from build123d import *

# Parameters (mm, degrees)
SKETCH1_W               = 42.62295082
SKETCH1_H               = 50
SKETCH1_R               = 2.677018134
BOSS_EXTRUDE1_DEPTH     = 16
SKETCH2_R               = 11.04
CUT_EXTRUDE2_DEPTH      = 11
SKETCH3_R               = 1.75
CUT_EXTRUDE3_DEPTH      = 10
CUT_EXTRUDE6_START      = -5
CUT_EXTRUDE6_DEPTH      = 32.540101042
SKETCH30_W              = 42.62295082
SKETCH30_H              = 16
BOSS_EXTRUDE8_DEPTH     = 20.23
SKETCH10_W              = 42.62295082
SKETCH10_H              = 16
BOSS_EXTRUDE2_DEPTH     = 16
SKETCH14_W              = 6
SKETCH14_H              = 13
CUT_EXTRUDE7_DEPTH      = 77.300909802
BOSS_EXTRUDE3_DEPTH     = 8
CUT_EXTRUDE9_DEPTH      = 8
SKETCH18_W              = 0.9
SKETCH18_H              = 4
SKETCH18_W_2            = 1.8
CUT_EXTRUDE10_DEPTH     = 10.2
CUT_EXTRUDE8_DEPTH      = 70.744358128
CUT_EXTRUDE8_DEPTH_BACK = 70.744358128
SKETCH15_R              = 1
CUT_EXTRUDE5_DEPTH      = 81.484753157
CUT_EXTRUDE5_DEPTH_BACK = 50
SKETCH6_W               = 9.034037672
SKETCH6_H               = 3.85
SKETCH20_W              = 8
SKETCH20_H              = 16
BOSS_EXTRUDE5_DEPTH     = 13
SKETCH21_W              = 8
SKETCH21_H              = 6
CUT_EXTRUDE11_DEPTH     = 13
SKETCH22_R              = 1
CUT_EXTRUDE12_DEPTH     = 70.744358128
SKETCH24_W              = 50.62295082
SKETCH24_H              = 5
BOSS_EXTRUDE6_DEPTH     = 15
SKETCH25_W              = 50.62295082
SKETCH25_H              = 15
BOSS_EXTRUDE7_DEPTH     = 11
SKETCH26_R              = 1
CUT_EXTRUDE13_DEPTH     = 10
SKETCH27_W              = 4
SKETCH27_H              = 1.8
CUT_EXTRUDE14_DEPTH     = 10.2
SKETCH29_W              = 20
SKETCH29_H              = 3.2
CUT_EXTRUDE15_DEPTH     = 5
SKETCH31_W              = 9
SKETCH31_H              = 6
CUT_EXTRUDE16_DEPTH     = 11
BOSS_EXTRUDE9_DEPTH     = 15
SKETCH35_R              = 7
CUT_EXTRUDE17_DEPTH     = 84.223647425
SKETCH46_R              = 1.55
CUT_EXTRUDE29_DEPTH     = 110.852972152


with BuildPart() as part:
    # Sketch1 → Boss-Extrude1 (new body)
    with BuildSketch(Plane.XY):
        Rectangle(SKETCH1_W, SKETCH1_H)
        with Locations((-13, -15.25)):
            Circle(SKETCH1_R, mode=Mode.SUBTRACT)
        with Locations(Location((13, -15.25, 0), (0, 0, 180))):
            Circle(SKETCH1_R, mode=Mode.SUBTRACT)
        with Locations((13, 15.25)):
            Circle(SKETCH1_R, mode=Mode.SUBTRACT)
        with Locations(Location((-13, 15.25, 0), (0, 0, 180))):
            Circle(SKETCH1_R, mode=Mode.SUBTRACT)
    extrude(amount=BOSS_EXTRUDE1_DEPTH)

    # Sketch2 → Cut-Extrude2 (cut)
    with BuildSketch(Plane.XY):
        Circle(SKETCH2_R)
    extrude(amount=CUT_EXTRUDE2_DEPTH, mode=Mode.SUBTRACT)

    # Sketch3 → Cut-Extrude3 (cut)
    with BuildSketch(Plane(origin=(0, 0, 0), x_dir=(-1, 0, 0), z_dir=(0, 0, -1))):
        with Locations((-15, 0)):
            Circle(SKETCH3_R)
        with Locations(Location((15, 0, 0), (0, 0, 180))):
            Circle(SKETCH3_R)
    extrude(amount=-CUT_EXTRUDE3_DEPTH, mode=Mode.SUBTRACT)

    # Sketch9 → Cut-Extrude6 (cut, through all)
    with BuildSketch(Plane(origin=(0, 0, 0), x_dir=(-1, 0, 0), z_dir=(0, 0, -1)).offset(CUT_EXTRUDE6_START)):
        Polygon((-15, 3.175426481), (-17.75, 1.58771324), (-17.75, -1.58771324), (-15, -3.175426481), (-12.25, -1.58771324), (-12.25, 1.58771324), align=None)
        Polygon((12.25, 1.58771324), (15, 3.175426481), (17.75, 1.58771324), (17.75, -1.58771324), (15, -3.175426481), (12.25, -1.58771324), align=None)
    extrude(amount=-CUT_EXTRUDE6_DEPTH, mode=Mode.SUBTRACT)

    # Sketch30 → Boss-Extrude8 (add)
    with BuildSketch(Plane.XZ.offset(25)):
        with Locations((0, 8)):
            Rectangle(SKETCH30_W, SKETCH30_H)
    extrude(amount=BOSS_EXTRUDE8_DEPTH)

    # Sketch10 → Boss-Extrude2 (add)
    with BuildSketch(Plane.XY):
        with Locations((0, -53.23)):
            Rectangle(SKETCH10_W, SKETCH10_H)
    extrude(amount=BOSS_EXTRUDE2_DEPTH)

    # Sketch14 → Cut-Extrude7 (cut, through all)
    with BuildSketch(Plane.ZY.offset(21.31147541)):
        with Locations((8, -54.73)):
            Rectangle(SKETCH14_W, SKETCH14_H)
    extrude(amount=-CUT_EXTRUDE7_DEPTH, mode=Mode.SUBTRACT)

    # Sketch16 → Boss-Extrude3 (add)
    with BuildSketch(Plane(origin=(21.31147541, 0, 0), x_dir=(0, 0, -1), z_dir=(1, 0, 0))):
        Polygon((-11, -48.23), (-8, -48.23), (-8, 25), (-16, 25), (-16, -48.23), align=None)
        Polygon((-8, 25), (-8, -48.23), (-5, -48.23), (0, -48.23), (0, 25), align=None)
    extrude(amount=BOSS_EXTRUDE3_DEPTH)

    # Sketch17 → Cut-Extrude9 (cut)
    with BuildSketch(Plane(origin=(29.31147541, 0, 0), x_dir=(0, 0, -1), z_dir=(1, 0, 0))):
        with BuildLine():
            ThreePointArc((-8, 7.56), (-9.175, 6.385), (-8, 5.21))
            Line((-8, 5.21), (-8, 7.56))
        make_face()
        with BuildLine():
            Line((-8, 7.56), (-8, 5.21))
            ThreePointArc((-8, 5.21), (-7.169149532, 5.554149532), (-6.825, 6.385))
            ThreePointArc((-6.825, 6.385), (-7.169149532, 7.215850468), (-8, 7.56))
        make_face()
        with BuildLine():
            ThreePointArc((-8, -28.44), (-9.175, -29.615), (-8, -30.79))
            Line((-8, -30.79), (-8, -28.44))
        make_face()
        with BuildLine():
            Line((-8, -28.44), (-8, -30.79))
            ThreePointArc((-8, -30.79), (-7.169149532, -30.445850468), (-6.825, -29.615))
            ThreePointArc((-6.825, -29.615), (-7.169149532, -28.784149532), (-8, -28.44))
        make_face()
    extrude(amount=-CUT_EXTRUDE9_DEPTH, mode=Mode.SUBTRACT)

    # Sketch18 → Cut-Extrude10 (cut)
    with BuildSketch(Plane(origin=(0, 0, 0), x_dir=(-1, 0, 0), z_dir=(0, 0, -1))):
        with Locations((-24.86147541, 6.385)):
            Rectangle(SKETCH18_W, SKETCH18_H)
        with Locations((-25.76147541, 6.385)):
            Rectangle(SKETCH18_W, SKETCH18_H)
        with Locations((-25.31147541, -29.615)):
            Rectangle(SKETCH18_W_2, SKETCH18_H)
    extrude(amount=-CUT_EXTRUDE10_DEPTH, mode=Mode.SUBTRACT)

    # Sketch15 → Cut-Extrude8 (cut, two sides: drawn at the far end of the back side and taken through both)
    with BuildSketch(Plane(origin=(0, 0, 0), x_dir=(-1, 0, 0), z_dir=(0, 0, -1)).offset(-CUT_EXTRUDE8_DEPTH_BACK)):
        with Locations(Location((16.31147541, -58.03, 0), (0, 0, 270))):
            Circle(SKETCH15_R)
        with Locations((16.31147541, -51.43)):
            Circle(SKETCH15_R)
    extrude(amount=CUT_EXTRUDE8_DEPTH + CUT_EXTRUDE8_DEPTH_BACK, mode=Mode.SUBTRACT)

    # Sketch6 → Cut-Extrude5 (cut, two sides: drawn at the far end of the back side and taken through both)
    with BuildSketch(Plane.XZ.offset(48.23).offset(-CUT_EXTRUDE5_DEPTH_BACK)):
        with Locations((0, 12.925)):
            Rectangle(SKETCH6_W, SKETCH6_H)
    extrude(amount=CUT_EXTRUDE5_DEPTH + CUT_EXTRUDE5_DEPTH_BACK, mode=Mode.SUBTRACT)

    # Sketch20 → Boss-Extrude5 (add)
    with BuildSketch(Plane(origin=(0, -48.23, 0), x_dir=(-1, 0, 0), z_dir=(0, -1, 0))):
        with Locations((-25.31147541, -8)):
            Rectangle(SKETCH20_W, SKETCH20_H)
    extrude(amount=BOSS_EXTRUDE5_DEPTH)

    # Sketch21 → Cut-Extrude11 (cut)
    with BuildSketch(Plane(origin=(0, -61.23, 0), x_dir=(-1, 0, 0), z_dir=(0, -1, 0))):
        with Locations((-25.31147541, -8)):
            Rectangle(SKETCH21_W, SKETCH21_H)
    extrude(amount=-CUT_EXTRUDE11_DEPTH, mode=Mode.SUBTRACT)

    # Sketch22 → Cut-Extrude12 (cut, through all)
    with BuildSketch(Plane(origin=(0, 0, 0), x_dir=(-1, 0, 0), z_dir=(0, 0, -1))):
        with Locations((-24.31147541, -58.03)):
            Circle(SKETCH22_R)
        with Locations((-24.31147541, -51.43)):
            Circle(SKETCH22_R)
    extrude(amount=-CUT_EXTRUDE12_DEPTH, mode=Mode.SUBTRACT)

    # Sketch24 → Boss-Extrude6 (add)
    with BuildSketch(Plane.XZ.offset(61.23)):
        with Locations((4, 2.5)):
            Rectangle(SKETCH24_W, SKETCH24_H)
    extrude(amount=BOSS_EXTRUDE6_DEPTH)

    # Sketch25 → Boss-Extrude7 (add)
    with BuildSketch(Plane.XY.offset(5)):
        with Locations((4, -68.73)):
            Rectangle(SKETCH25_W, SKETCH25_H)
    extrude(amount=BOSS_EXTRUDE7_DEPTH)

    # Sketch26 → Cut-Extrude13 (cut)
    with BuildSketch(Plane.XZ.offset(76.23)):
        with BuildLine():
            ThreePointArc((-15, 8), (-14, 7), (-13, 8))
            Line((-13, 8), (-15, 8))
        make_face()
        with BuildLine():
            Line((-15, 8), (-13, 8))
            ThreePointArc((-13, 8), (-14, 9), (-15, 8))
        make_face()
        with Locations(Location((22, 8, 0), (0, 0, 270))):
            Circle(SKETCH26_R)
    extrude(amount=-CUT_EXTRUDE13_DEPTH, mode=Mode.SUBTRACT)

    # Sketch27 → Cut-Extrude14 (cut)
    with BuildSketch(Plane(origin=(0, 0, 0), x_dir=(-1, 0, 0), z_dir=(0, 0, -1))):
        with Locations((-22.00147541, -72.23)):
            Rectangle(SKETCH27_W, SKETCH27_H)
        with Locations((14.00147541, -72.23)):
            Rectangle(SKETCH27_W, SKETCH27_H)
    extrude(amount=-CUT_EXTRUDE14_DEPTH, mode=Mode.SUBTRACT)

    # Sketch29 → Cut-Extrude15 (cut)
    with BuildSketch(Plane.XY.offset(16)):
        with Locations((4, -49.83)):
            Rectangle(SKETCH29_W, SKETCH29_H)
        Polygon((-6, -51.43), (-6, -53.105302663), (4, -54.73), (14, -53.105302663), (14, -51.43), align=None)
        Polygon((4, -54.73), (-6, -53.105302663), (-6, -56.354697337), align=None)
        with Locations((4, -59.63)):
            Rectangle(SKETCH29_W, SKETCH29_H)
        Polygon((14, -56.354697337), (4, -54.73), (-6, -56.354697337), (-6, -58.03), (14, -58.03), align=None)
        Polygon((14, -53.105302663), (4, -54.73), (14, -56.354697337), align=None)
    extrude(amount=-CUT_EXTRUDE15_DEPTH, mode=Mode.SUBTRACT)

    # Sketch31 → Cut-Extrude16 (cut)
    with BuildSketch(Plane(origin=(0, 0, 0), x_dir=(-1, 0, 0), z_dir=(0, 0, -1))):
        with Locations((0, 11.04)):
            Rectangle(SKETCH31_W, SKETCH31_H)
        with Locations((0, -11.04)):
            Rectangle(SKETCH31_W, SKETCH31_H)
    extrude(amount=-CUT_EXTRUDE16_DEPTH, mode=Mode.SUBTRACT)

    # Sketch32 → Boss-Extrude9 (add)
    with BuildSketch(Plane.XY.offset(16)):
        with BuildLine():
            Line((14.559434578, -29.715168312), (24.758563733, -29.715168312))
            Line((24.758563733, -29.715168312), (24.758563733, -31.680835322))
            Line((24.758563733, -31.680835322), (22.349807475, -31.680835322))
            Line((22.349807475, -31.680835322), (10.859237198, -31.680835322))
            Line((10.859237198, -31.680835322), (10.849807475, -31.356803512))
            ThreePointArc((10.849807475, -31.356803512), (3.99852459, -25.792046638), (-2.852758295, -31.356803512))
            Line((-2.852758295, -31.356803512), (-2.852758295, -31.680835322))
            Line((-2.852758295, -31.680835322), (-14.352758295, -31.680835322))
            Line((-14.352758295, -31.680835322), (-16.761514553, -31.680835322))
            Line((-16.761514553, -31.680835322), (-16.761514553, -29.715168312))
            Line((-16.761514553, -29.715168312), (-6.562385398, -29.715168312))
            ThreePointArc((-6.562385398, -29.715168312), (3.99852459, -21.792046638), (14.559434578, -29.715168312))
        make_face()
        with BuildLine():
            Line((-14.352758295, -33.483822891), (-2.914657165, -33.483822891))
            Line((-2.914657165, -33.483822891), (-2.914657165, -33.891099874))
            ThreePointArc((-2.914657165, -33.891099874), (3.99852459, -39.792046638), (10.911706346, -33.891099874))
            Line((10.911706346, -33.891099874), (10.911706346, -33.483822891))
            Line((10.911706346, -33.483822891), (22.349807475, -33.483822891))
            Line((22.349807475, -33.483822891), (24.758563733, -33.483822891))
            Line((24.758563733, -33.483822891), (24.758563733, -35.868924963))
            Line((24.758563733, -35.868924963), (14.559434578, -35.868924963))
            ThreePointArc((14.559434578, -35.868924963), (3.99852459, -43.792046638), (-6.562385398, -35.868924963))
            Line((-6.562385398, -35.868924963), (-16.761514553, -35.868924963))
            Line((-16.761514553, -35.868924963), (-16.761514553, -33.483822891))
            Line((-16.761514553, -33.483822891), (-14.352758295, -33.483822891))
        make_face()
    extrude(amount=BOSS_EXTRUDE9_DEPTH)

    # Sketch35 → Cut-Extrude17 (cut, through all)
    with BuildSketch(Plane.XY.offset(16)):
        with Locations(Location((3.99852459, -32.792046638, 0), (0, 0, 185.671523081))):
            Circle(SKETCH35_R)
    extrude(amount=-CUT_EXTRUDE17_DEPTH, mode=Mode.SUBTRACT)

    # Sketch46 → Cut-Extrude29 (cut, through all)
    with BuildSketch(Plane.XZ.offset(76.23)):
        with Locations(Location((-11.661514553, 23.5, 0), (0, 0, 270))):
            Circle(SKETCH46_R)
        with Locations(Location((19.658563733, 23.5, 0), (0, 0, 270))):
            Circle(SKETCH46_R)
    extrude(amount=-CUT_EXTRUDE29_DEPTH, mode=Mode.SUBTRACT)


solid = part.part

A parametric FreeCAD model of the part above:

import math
import FreeCAD as App
import Part
import Sketcher

V = App.Vector
Q = App.Units.Quantity


def add_polygon(sketch, points):
    """Adds a closed chain of lines whose ends are joined by coincident constraints."""
    first, n = sketch.GeometryCount, len(points)
    for a, b in zip(points, points[1:] + points[:1]):
        sketch.addGeometry(Part.LineSegment(App.Vector(*a, 0), App.Vector(*b, 0)), False)
    for i in range(n):
        sketch.addConstraint(Sketcher.Constraint("Coincident", first + i, 2, first + (i + 1) % n, 1))

doc = App.newDocument("Part")
body = doc.addObject("PartDesign::Body", "Body")

# Sketch on XY plane
sketch1 = body.newObject("Sketcher::SketchObject", "Sketch")
sketch1.AttachmentSupport = (doc.getObject("XY_Plane"), [""])
sketch1.MapMode = "FlatFace"
add_polygon(sketch1, [(-21.311475, 25), (-21.311475, -25), (21.311475, -25), (21.311475, 25)])  # lines 0-3
sketch1.addGeometry(Part.Circle(V(-13, -15.25, 0), V(0, 0, 1), 2.677018), False)  # 4
sketch1.addGeometry(Part.Circle(V(13, -15.25, 0), V(0, 0, 1), 2.677018), False)  # 5
sketch1.addGeometry(Part.Circle(V(-13, 15.25, 0), V(0, 0, 1), 2.677018), False)  # 6
sketch1.addGeometry(Part.Circle(V(13, 15.25, 0), V(0, 0, 1), 2.677018), False)  # 7
sketch1.addConstraint(Sketcher.Constraint("Vertical", 0))
sketch1.addConstraint(Sketcher.Constraint("Horizontal", 1))
sketch1.addConstraint(Sketcher.Constraint("Vertical", 2))
sketch1.addConstraint(Sketcher.Constraint("Horizontal", 3))
sketch1.addConstraint(Sketcher.Constraint("Equal", 4, 5))
sketch1.addConstraint(Sketcher.Constraint("Equal", 5, 6))
sketch1.addConstraint(Sketcher.Constraint("Equal", 6, 7))
sketch1.addConstraint(Sketcher.Constraint("Symmetric", 5, 3, 6, 3, -1, 1))
sketch1.addConstraint(Sketcher.Constraint("Symmetric", 4, 3, 7, 3, -1, 1))
sketch1.addConstraint(Sketcher.Constraint("Symmetric", 0, 2, 2, 2, -1, 1))
sketch1.addConstraint(Sketcher.Constraint("Symmetric", 4, 3, 5, 3, -2))
sketch1.addConstraint(Sketcher.Constraint("DistanceY", 0, 2, 0, 1, 50.0))
sketch1.addConstraint(Sketcher.Constraint("DistanceX", 4, 3, -1, 1, 13.0))
sketch1.addConstraint(Sketcher.Constraint("DistanceY", 4, 3, 6, 3, 30.5))
sketch1.addConstraint(Sketcher.Constraint("Diameter", 4, 5.354036))
sketch1.addConstraint(Sketcher.Constraint("DistanceX", 1, 1, 1, 2, 42.622951))
pad1 = body.newObject("PartDesign::Pad", "Pad")
pad1.Profile = sketch1
pad1.Length = 16

# Sketch on XY plane
sketch2 = body.newObject("Sketcher::SketchObject", "Sketch001")
sketch2.AttachmentSupport = (doc.getObject("XY_Plane"), [""])
sketch2.MapMode = "FlatFace"
sketch2.addGeometry(Part.Circle(V(0, 0, 0), V(0, 0, 1), 11.04), False)
sketch2.addConstraint(Sketcher.Constraint("Coincident", 0, 3, -1, 1))
sketch2.addConstraint(Sketcher.Constraint("Diameter", 0, 22.08))
pocket1 = body.newObject("PartDesign::Pocket", "Pocket")
pocket1.Profile = sketch2
pocket1.Length = 11
pocket1.Reversed = True

# Sketch on XY plane
sketch3 = body.newObject("Sketcher::SketchObject", "Sketch002")
sketch3.AttachmentSupport = (doc.getObject("XY_Plane"), [""])
sketch3.MapMode = "FlatFace"
sketch3.addGeometry(Part.Circle(V(15, 0, 0), V(0, 0, 1), 1.75), False)
sketch3.addGeometry(Part.Circle(V(-15, 0, 0), V(0, 0, 1), 1.75), False)
sketch3.addConstraint(Sketcher.Constraint("Equal", 0, 1))
sketch3.addConstraint(Sketcher.Constraint("Symmetric", 0, 3, 1, 3, -1, 1))
sketch3.addConstraint(Sketcher.Constraint("PointOnObject", 0, 3, -1))
sketch3.addConstraint(Sketcher.Constraint("Diameter", 0, 3.5))
sketch3.addConstraint(Sketcher.Constraint("DistanceX", -1, 1, 0, 3, 15.0))
pocket2 = body.newObject("PartDesign::Pocket", "Pocket001")
pocket2.Profile = sketch3
pocket2.Length = 10
pocket2.Reversed = True

# Sketch on XY plane
sketch4 = body.newObject("Sketcher::SketchObject", "Sketch003")
sketch4.AttachmentSupport = (doc.getObject("XY_Plane"), [""])
sketch4.MapMode = "FlatFace"
sketch4.AttachmentOffset = App.Placement(V(0, 0, 5), App.Rotation())
add_polygon(sketch4, [(15, 3.175426), (17.75, 1.587713), (17.75, -1.587713), (15, -3.175426), (12.25, -1.587713), (12.25, 1.587713)])  # lines 0-5
add_polygon(sketch4, [(-15, 3.175426), (-12.25, 1.587713), (-12.25, -1.587713), (-15, -3.175426), (-17.75, -1.587713), (-17.75, 1.587713)])  # lines 6-11
sketch4.addConstraint(Sketcher.Constraint("Vertical", 1))
sketch4.addConstraint(Sketcher.Constraint("Vertical", 4))
sketch4.addConstraint(Sketcher.Constraint("Vertical", 7))
sketch4.addConstraint(Sketcher.Constraint("Vertical", 10))
sketch4.addConstraint(Sketcher.Constraint("Symmetric", 3, 2, 6, 2, -1, 1))
sketch4.addConstraint(Sketcher.Constraint("Symmetric", 5, 2, 8, 2, -1, 1))
sketch4.addConstraint(Sketcher.Constraint("Symmetric", 0, 2, 9, 2, -1, 1))
sketch4.addConstraint(Sketcher.Constraint("Symmetric", 2, 2, 11, 2, -1, 1))
sketch4.addConstraint(Sketcher.Constraint("Symmetric", 2, 2, 8, 2, -2))
sketch4.addConstraint(Sketcher.Constraint("Parallel", 0, 3))
sketch4.addConstraint(Sketcher.Constraint("Parallel", 2, 5))
sketch4.addConstraint(Sketcher.Constraint("Parallel", 5, 8))
sketch4.addConstraint(Sketcher.Constraint("Parallel", 8, 11))
sketch4.addConstraint(Sketcher.Constraint("Horizontal", 1, 2, 3, 2))
sketch4.addConstraint(Sketcher.Constraint("Horizontal", 0, 2, 4, 2))
sketch4.addConstraint(Sketcher.Constraint("Angle", 0, Q("-30 deg")))
sketch4.addConstraint(Sketcher.Constraint("DistanceX", -1, 1, 2, 2, 15.0))
sketch4.addConstraint(Sketcher.Constraint("DistanceX", 3, 2, 1, 2, 5.5))
sketch4.addConstraint(Sketcher.Constraint("DistanceY", 1, 2, 1, 1, 3.175426))
pocket3 = body.newObject("PartDesign::Pocket", "Pocket002")
pocket3.Profile = sketch4
pocket3.Type = "ThroughAll"
pocket3.Reversed = True

# Sketch on XZ plane
sketch5 = body.newObject("Sketcher::SketchObject", "Sketch004")
sketch5.AttachmentSupport = (doc.getObject("XZ_Plane"), [""])
sketch5.MapMode = "FlatFace"
sketch5.AttachmentOffset = App.Placement(V(0, 0, 25), App.Rotation())
add_polygon(sketch5, [(-21.311475, 16), (-21.311475, 0), (21.311475, 0), (21.311475, 16)])  # lines 0-3
sketch5.addConstraint(Sketcher.Constraint("Vertical", 0))
sketch5.addConstraint(Sketcher.Constraint("Horizontal", 1))
sketch5.addConstraint(Sketcher.Constraint("Vertical", 2))
sketch5.addConstraint(Sketcher.Constraint("Horizontal", 3))
sketch5.addConstraint(Sketcher.Constraint("Symmetric", 0, 2, 1, 2, -1, 1))
sketch5.addConstraint(Sketcher.Constraint("DistanceY", 0, 2, 0, 1, 16.0))
sketch5.addConstraint(Sketcher.Constraint("DistanceX", 1, 1, 1, 2, 42.622951))
pad2 = body.newObject("PartDesign::Pad", "Pad001")
pad2.Profile = sketch5
pad2.Length = 20.23

# Sketch on XY plane
sketch6 = body.newObject("Sketcher::SketchObject", "Sketch005")
sketch6.AttachmentSupport = (doc.getObject("XY_Plane"), [""])
sketch6.MapMode = "FlatFace"
add_polygon(sketch6, [(-21.311475, -45.23), (-21.311475, -61.23), (21.311475, -61.23), (21.311475, -45.23)])  # lines 0-3
sketch6.addConstraint(Sketcher.Constraint("Vertical", 0))
sketch6.addConstraint(Sketcher.Constraint("Horizontal", 1))
sketch6.addConstraint(Sketcher.Constraint("Vertical", 2))
sketch6.addConstraint(Sketcher.Constraint("Horizontal", 3))
sketch6.addConstraint(Sketcher.Constraint("DistanceY", 0, 2, 0, 1, 16.0))
sketch6.addConstraint(Sketcher.Constraint("DistanceY", 0, 2, -1, 1, 61.23))
sketch6.addConstraint(Sketcher.Constraint("DistanceX", 1, 1, 1, 2, 42.622951))
sketch6.addConstraint(Sketcher.Constraint("DistanceX", 0, 2, -1, 1, 21.311475))
pad3 = body.newObject("PartDesign::Pad", "Pad002")
pad3.Profile = sketch6
pad3.Length = 16

# Sketch on YZ plane
sketch7 = body.newObject("Sketcher::SketchObject", "Sketch006")
sketch7.AttachmentSupport = (doc.getObject("YZ_Plane"), [""])
sketch7.MapMode = "FlatFace"
sketch7.AttachmentOffset = App.Placement(V(0, 0, -21.311475), App.Rotation())
add_polygon(sketch7, [(-48.23, 5), (-61.23, 5), (-61.23, 11), (-48.23, 11)])  # lines 0-3
sketch7.addConstraint(Sketcher.Constraint("Horizontal", 0))
sketch7.addConstraint(Sketcher.Constraint("Vertical", 1))
sketch7.addConstraint(Sketcher.Constraint("Horizontal", 2))
sketch7.addConstraint(Sketcher.Constraint("Vertical", 3))
sketch7.addConstraint(Sketcher.Constraint("DistanceX", 0, 2, 0, 1, 13.0))
sketch7.addConstraint(Sketcher.Constraint("DistanceY", 1, 1, 1, 2, 6.0))
sketch7.addConstraint(Sketcher.Constraint("DistanceY", -1, 1, 0, 2, 5.0))
sketch7.addConstraint(Sketcher.Constraint("DistanceX", 0, 2, -1, 1, 61.23))
pocket4 = body.newObject("PartDesign::Pocket", "Pocket003")
pocket4.Profile = sketch7
pocket4.Type = "ThroughAll"
pocket4.Reversed = True

# Sketch on YZ plane
sketch8 = body.newObject("Sketcher::SketchObject", "Sketch007")
sketch8.AttachmentSupport = (doc.getObject("YZ_Plane"), [""])
sketch8.MapMode = "FlatFace"
sketch8.AttachmentOffset = App.Placement(V(0, 0, 21.311475), App.Rotation())
add_polygon(sketch8, [(25, 16), (-48.23, 16), (-48.23, 0), (25, 0)])  # lines 0-3
sketch8.addConstraint(Sketcher.Constraint("Horizontal", 0))
sketch8.addConstraint(Sketcher.Constraint("Vertical", 1))
sketch8.addConstraint(Sketcher.Constraint("Horizontal", 2))
sketch8.addConstraint(Sketcher.Constraint("Vertical", 3))
sketch8.addConstraint(Sketcher.Constraint("PointOnObject", 1, 2, -1))
sketch8.addConstraint(Sketcher.Constraint("DistanceY", 1, 2, 1, 1, 16.0))
sketch8.addConstraint(Sketcher.Constraint("DistanceX", -1, 1, 2, 2, 25.0))
sketch8.addConstraint(Sketcher.Constraint("DistanceX", 0, 2, 0, 1, 73.23))
pad4 = body.newObject("PartDesign::Pad", "Pad003")
pad4.Profile = sketch8
pad4.Length = 8

# Sketch on YZ plane
sketch9 = body.newObject("Sketcher::SketchObject", "Sketch008")
sketch9.AttachmentSupport = (doc.getObject("YZ_Plane"), [""])
sketch9.MapMode = "FlatFace"
sketch9.AttachmentOffset = App.Placement(V(0, 0, 29.311475), App.Rotation())
sketch9.addGeometry(Part.ArcOfCircle(Part.Circle(V(6.385, 8, 0), V(0, 0, 1), 1.175), math.radians(0), math.radians(180)), False)
sketch9.addGeometry(Part.ArcOfCircle(Part.Circle(V(6.385, 8, 0), V(0, 0, 1), 1.175), math.radians(180), math.radians(270)), False)
sketch9.addGeometry(Part.ArcOfCircle(Part.Circle(V(6.385, 8, 0), V(0, 0, 1), 1.175), math.radians(-90), math.radians(0)), False)
sketch9.addGeometry(Part.ArcOfCircle(Part.Circle(V(-29.615, 8, 0), V(0, 0, 1), 1.175), math.radians(0), math.radians(180)), False)
sketch9.addGeometry(Part.ArcOfCircle(Part.Circle(V(-29.615, 8, 0), V(0, 0, 1), 1.175), math.radians(180), math.radians(270)), False)
sketch9.addGeometry(Part.ArcOfCircle(Part.Circle(V(-29.615, 8, 0), V(0, 0, 1), 1.175), math.radians(-90), math.radians(0)), False)
sketch9.addConstraint(Sketcher.Constraint("Tangent", 0, 2, 1, 1))
sketch9.addConstraint(Sketcher.Constraint("Tangent", 1, 2, 2, 1))
sketch9.addConstraint(Sketcher.Constraint("Tangent", 2, 2, 0, 1))
sketch9.addConstraint(Sketcher.Constraint("Tangent", 3, 2, 4, 1))
sketch9.addConstraint(Sketcher.Constraint("Tangent", 4, 2, 5, 1))
sketch9.addConstraint(Sketcher.Constraint("Tangent", 5, 2, 3, 1))
sketch9.addConstraint(Sketcher.Constraint("Equal", 2, 3))
sketch9.addConstraint(Sketcher.Constraint("Horizontal", 2, 3, 3, 3))
sketch9.addConstraint(Sketcher.Constraint("Horizontal", 5, 3, 0, 2))
sketch9.addConstraint(Sketcher.Constraint("Horizontal", 0, 2, 2, 2))
sketch9.addConstraint(Sketcher.Constraint("Horizontal", 2, 2, 3, 2))
sketch9.addConstraint(Sketcher.Constraint("Horizontal", 3, 2, 5, 2))
sketch9.addConstraint(Sketcher.Constraint("Vertical", 2, 3, 1, 2))
sketch9.addConstraint(Sketcher.Constraint("Vertical", 5, 3, 4, 2))
sketch9.addConstraint(Sketcher.Constraint("DistanceY", -1, 1, 0, 3, 8.0))
sketch9.addConstraint(Sketcher.Constraint("Radius", 0, 1.175))
sketch9.addConstraint(Sketcher.Constraint("DistanceX", 3, 3, 0, 3, 36.0))
sketch9.addConstraint(Sketcher.Constraint("DistanceX", -1, 1, 0, 2, 5.21))
pocket5 = body.newObject("PartDesign::Pocket", "Pocket004")
pocket5.Profile = sketch9
pocket5.Length = 8

# Sketch on XY plane
sketch10 = body.newObject("Sketcher::SketchObject", "Sketch009")
sketch10.AttachmentSupport = (doc.getObject("XY_Plane"), [""])
sketch10.MapMode = "FlatFace"
add_polygon(sketch10, [(24.411475, 4.385), (24.411475, 8.385), (26.211475, 8.385), (26.211475, 4.385)])  # lines 0-3
add_polygon(sketch10, [(26.211475, -27.615), (26.211475, -31.615), (24.411475, -31.615), (24.411475, -27.615)])  # lines 4-7
sketch10.addConstraint(Sketcher.Constraint("Vertical", 0))
sketch10.addConstraint(Sketcher.Constraint("Horizontal", 1))
sketch10.addConstraint(Sketcher.Constraint("Vertical", 2))
sketch10.addConstraint(Sketcher.Constraint("Horizontal", 3))
sketch10.addConstraint(Sketcher.Constraint("Vertical", 4))
sketch10.addConstraint(Sketcher.Constraint("Horizontal", 5))
sketch10.addConstraint(Sketcher.Constraint("Vertical", 6))
sketch10.addConstraint(Sketcher.Constraint("Horizontal", 7))
sketch10.addConstraint(Sketcher.Constraint("Vertical", 2, 2, 4, 2))
sketch10.addConstraint(Sketcher.Constraint("Vertical", 3, 2, 5, 2))
sketch10.addConstraint(Sketcher.Constraint("Equal", 2, 4))
sketch10.addConstraint(Sketcher.Constraint("DistanceY", 0, 1, 0, 2, 4.0))
sketch10.addConstraint(Sketcher.Constraint("DistanceX", 1, 1, 1, 2, 1.8))
sketch10.addConstraint(Sketcher.Constraint("DistanceY", 4, 2, 2, 2, 36.0))
sketch10.addConstraint(Sketcher.Constraint("DistanceY", -1, 1, 0, 2, 8.385))
sketch10.addConstraint(Sketcher.Constraint("DistanceX", -1, 1, 0, 2, 24.411475))
pocket6 = body.newObject("PartDesign::Pocket", "Pocket005")
pocket6.Profile = sketch10
pocket6.Length = 10.2
pocket6.Reversed = True

# Sketch on XY plane
sketch11 = body.newObject("Sketcher::SketchObject", "Sketch010")
sketch11.AttachmentSupport = (doc.getObject("XY_Plane"), [""])
sketch11.MapMode = "FlatFace"
sketch11.addGeometry(Part.Circle(V(-16.311475, -58.03, 0), V(0, 0, 1), 1), False)
sketch11.addGeometry(Part.Circle(V(-16.311475, -51.43, 0), V(0, 0, 1), 1), False)
sketch11.addConstraint(Sketcher.Constraint("Equal", 0, 1))
sketch11.addConstraint(Sketcher.Constraint("Vertical", 0, 3, 1, 3))
sketch11.addConstraint(Sketcher.Constraint("Diameter", 0, 2.0))
sketch11.addConstraint(Sketcher.Constraint("DistanceY", 0, 3, 1, 3, 6.6))
sketch11.addConstraint(Sketcher.Constraint("DistanceY", 0, 3, -1, 1, 58.03))
sketch11.addConstraint(Sketcher.Constraint("DistanceX", 0, 3, -1, 1, 16.311475))
pocket7 = body.newObject("PartDesign::Pocket", "Pocket006")
pocket7.Profile = sketch11
pocket7.Type = "ThroughAll"
pocket7.Midplane = True

# Sketch on XZ plane
sketch12 = body.newObject("Sketcher::SketchObject", "Sketch011")
sketch12.AttachmentSupport = (doc.getObject("XZ_Plane"), [""])
sketch12.MapMode = "FlatFace"
sketch12.AttachmentOffset = App.Placement(V(0, 0, 48.23), App.Rotation())
add_polygon(sketch12, [(-4.517019, 14.85), (-4.517019, 11), (4.517019, 11), (4.517019, 14.85)])  # lines 0-3
sketch12.addConstraint(Sketcher.Constraint("Vertical", 0))
sketch12.addConstraint(Sketcher.Constraint("Horizontal", 1))
sketch12.addConstraint(Sketcher.Constraint("Vertical", 2))
sketch12.addConstraint(Sketcher.Constraint("Horizontal", 3))
sketch12.addConstraint(Sketcher.Constraint("DistanceY", -1, 1, 0, 2, 11.0))
sketch12.addConstraint(Sketcher.Constraint("DistanceY", 0, 2, 0, 1, 3.85))
sketch12.addConstraint(Sketcher.Constraint("DistanceX", 1, 1, 1, 2, 9.034038))
sketch12.addConstraint(Sketcher.Constraint("DistanceX", 0, 2, -1, 1, 4.517019))
pocket8 = body.newObject("PartDesign::Pocket", "Pocket007")
pocket8.Profile = sketch12
pocket8.Type = "TwoLengths"
pocket8.Length = 81.484753
pocket8.Length2 = 50
pocket8.Reversed = True

# Sketch on XZ plane
sketch13 = body.newObject("Sketcher::SketchObject", "Sketch012")
sketch13.AttachmentSupport = (doc.getObject("XZ_Plane"), [""])
sketch13.MapMode = "FlatFace"
sketch13.AttachmentOffset = App.Placement(V(0, 0, 48.23), App.Rotation())
add_polygon(sketch13, [(29.311475, 0), (29.311475, 16), (21.311475, 16), (21.311475, 0)])  # lines 0-3
sketch13.addConstraint(Sketcher.Constraint("Vertical", 0))
sketch13.addConstraint(Sketcher.Constraint("Horizontal", 1))
sketch13.addConstraint(Sketcher.Constraint("Vertical", 2))
sketch13.addConstraint(Sketcher.Constraint("Horizontal", 3))
sketch13.addConstraint(Sketcher.Constraint("PointOnObject", 2, 2, -1))
sketch13.addConstraint(Sketcher.Constraint("DistanceX", 1, 2, 1, 1, 8.0))
sketch13.addConstraint(Sketcher.Constraint("DistanceY", 0, 1, 0, 2, 16.0))
sketch13.addConstraint(Sketcher.Constraint("DistanceX", -1, 1, 0, 2, 29.311475))
pad5 = body.newObject("PartDesign::Pad", "Pad004")
pad5.Profile = sketch13
pad5.Length = 13

# Sketch on XZ plane
sketch14 = body.newObject("Sketcher::SketchObject", "Sketch013")
sketch14.AttachmentSupport = (doc.getObject("XZ_Plane"), [""])
sketch14.MapMode = "FlatFace"
sketch14.AttachmentOffset = App.Placement(V(0, 0, 61.23), App.Rotation())
add_polygon(sketch14, [(29.311475, 5), (29.311475, 11), (21.311475, 11), (21.311475, 5)])  # lines 0-3
sketch14.addConstraint(Sketcher.Constraint("Vertical", 0))
sketch14.addConstraint(Sketcher.Constraint("Horizontal", 1))
sketch14.addConstraint(Sketcher.Constraint("Vertical", 2))
sketch14.addConstraint(Sketcher.Constraint("Horizontal", 3))
sketch14.addConstraint(Sketcher.Constraint("DistanceX", 1, 2, 1, 1, 8.0))
sketch14.addConstraint(Sketcher.Constraint("DistanceY", 0, 1, 0, 2, 6.0))
sketch14.addConstraint(Sketcher.Constraint("DistanceY", -1, 1, 0, 2, 11.0))
sketch14.addConstraint(Sketcher.Constraint("DistanceX", -1, 1, 0, 2, 29.311475))
pocket9 = body.newObject("PartDesign::Pocket", "Pocket008")
pocket9.Profile = sketch14
pocket9.Length = 13

# Sketch on XY plane
sketch15 = body.newObject("Sketcher::SketchObject", "Sketch014")
sketch15.AttachmentSupport = (doc.getObject("XY_Plane"), [""])
sketch15.MapMode = "FlatFace"
sketch15.addGeometry(Part.Circle(V(24.311475, -58.03, 0), V(0, 0, 1), 1), False)
sketch15.addGeometry(Part.Circle(V(24.311475, -51.43, 0), V(0, 0, 1), 1), False)
sketch15.addConstraint(Sketcher.Constraint("Equal", 0, 1))
sketch15.addConstraint(Sketcher.Constraint("Vertical", 0, 3, 1, 3))
sketch15.addConstraint(Sketcher.Constraint("Diameter", 0, 2.0))
sketch15.addConstraint(Sketcher.Constraint("DistanceY", 0, 3, 1, 3, 6.6))
sketch15.addConstraint(Sketcher.Constraint("DistanceY", 0, 3, -1, 1, 58.03))
sketch15.addConstraint(Sketcher.Constraint("DistanceX", -1, 1, 0, 3, 24.311475))
pocket10 = body.newObject("PartDesign::Pocket", "Pocket009")
pocket10.Profile = sketch15
pocket10.Type = "ThroughAll"
pocket10.Reversed = True

# Sketch on XZ plane
sketch16 = body.newObject("Sketcher::SketchObject", "Sketch015")
sketch16.AttachmentSupport = (doc.getObject("XZ_Plane"), [""])
sketch16.MapMode = "FlatFace"
sketch16.AttachmentOffset = App.Placement(V(0, 0, 61.23), App.Rotation())
add_polygon(sketch16, [(-21.311475, 5), (-21.311475, 0), (29.311475, 0), (29.311475, 5)])  # lines 0-3
sketch16.addConstraint(Sketcher.Constraint("Vertical", 0))
sketch16.addConstraint(Sketcher.Constraint("Horizontal", 1))
sketch16.addConstraint(Sketcher.Constraint("Vertical", 2))
sketch16.addConstraint(Sketcher.Constraint("Horizontal", 3))
sketch16.addConstraint(Sketcher.Constraint("PointOnObject", 0, 2, -1))
sketch16.addConstraint(Sketcher.Constraint("DistanceY", 0, 2, 0, 1, 5.0))
sketch16.addConstraint(Sketcher.Constraint("DistanceX", 1, 1, 1, 2, 50.622951))
sketch16.addConstraint(Sketcher.Constraint("DistanceX", 0, 2, -1, 1, 21.311475))
pad6 = body.newObject("PartDesign::Pad", "Pad005")
pad6.Profile = sketch16
pad6.Length = 15

# Sketch on XY plane
sketch17 = body.newObject("Sketcher::SketchObject", "Sketch016")
sketch17.AttachmentSupport = (doc.getObject("XY_Plane"), [""])
sketch17.MapMode = "FlatFace"
sketch17.AttachmentOffset = App.Placement(V(0, 0, 5), App.Rotation())
add_polygon(sketch17, [(-21.311475, -61.23), (-21.311475, -76.23), (29.311475, -76.23), (29.311475, -61.23)])  # lines 0-3
sketch17.addConstraint(Sketcher.Constraint("Vertical", 0))
sketch17.addConstraint(Sketcher.Constraint("Horizontal", 1))
sketch17.addConstraint(Sketcher.Constraint("Vertical", 2))
sketch17.addConstraint(Sketcher.Constraint("Horizontal", 3))
sketch17.addConstraint(Sketcher.Constraint("DistanceY", 0, 2, 0, 1, 15.0))
sketch17.addConstraint(Sketcher.Constraint("DistanceY", 0, 2, -1, 1, 76.23))
sketch17.addConstraint(Sketcher.Constraint("DistanceX", 1, 1, 1, 2, 50.622951))
sketch17.addConstraint(Sketcher.Constraint("DistanceX", 0, 2, -1, 1, 21.311475))
pad7 = body.newObject("PartDesign::Pad", "Pad006")
pad7.Profile = sketch17
pad7.Length = 11

# Sketch on XZ plane
sketch18 = body.newObject("Sketcher::SketchObject", "Sketch017")
sketch18.AttachmentSupport = (doc.getObject("XZ_Plane"), [""])
sketch18.MapMode = "FlatFace"
sketch18.AttachmentOffset = App.Placement(V(0, 0, 76.23), App.Rotation())
sketch18.addGeometry(Part.Circle(V(-14, 8, 0), V(0, 0, 1), 1), False)
sketch18.addGeometry(Part.Circle(V(22, 8, 0), V(0, 0, 1), 1), False)
sketch18.addConstraint(Sketcher.Constraint("Equal", 0, 1))
sketch18.addConstraint(Sketcher.Constraint("Horizontal", 0, 3, 1, 3))
sketch18.addConstraint(Sketcher.Constraint("Diameter", 0, 2.0))
sketch18.addConstraint(Sketcher.Constraint("DistanceX", 0, 3, -1, 1, 14.0))
sketch18.addConstraint(Sketcher.Constraint("DistanceY", -1, 1, 0, 3, 8.0))
sketch18.addConstraint(Sketcher.Constraint("DistanceX", -1, 1, 1, 3, 22.0))
pocket11 = body.newObject("PartDesign::Pocket", "Pocket010")
pocket11.Profile = sketch18
pocket11.Length = 10

# Sketch on XY plane
sketch19 = body.newObject("Sketcher::SketchObject", "Sketch018")
sketch19.AttachmentSupport = (doc.getObject("XY_Plane"), [""])
sketch19.MapMode = "FlatFace"
add_polygon(sketch19, [(24.001475, -71.33), (24.001475, -73.13), (20.001475, -73.13), (20.001475, -71.33)])  # lines 0-3
add_polygon(sketch19, [(-12.001475, -71.33), (-12.001475, -73.13), (-16.001475, -73.13), (-16.001475, -71.33)])  # lines 4-7
sketch19.addConstraint(Sketcher.Constraint("Vertical", 0))
sketch19.addConstraint(Sketcher.Constraint("Horizontal", 1))
sketch19.addConstraint(Sketcher.Constraint("Vertical", 2))
sketch19.addConstraint(Sketcher.Constraint("Horizontal", 3))
sketch19.addConstraint(Sketcher.Constraint("Vertical", 4))
sketch19.addConstraint(Sketcher.Constraint("Horizontal", 5))
sketch19.addConstraint(Sketcher.Constraint("Vertical", 6))
sketch19.addConstraint(Sketcher.Constraint("Horizontal", 7))
sketch19.addConstraint(Sketcher.Constraint("Horizontal", 1, 2, 4, 2))
sketch19.addConstraint(Sketcher.Constraint("Horizontal", 3, 2, 6, 2))
sketch19.addConstraint(Sketcher.Constraint("Equal", 3, 5))
sketch19.addConstraint(Sketcher.Constraint("DistanceX", 1, 2, 1, 1, 4.0))
sketch19.addConstraint(Sketcher.Constraint("DistanceY", 0, 2, 0, 1, 1.8))
sketch19.addConstraint(Sketcher.Constraint("DistanceY", 0, 2, -1, 1, 73.13))
sketch19.addConstraint(Sketcher.Constraint("DistanceX", 4, 2, 1, 2, 32.002951))
sketch19.addConstraint(Sketcher.Constraint("DistanceX", -1, 1, 0, 2, 24.001475))
pocket12 = body.newObject("PartDesign::Pocket", "Pocket011")
pocket12.Profile = sketch19
pocket12.Length = 10.2
pocket12.Reversed = True

# Sketch on XY plane
sketch20 = body.newObject("Sketcher::SketchObject", "Sketch019")
sketch20.AttachmentSupport = (doc.getObject("XY_Plane"), [""])
sketch20.MapMode = "FlatFace"
sketch20.AttachmentOffset = App.Placement(V(0, 0, 16), App.Rotation())
add_polygon(sketch20, [(-6, -48.23), (-6, -61.23), (14, -61.23), (14, -48.23)])  # lines 0-3
sketch20.addConstraint(Sketcher.Constraint("Vertical", 0))
sketch20.addConstraint(Sketcher.Constraint("Horizontal", 1))
sketch20.addConstraint(Sketcher.Constraint("Vertical", 2))
sketch20.addConstraint(Sketcher.Constraint("Horizontal", 3))
sketch20.addConstraint(Sketcher.Constraint("DistanceX", 1, 1, 1, 2, 20.0))
sketch20.addConstraint(Sketcher.Constraint("DistanceY", 0, 2, 0, 1, 13.0))
sketch20.addConstraint(Sketcher.Constraint("DistanceX", 0, 2, -1, 1, 6.0))
sketch20.addConstraint(Sketcher.Constraint("DistanceY", 0, 2, -1, 1, 61.23))
pocket13 = body.newObject("PartDesign::Pocket", "Pocket012")
pocket13.Profile = sketch20
pocket13.Length = 5

# Sketch on XY plane
sketch21 = body.newObject("Sketcher::SketchObject", "Sketch020")
sketch21.AttachmentSupport = (doc.getObject("XY_Plane"), [""])
sketch21.MapMode = "FlatFace"
add_polygon(sketch21, [(4.5, 14.04), (4.5, 8.04), (-4.5, 8.04), (-4.5, 14.04)])  # lines 0-3
add_polygon(sketch21, [(4.5, -8.04), (4.5, -14.04), (-4.5, -14.04), (-4.5, -8.04)])  # lines 4-7
sketch21.addConstraint(Sketcher.Constraint("Vertical", 0))
sketch21.addConstraint(Sketcher.Constraint("Horizontal", 1))
sketch21.addConstraint(Sketcher.Constraint("Vertical", 2))
sketch21.addConstraint(Sketcher.Constraint("Horizontal", 3))
sketch21.addConstraint(Sketcher.Constraint("Vertical", 4))
sketch21.addConstraint(Sketcher.Constraint("Horizontal", 5))
sketch21.addConstraint(Sketcher.Constraint("Vertical", 6))
sketch21.addConstraint(Sketcher.Constraint("Horizontal", 7))
sketch21.addConstraint(Sketcher.Constraint("Symmetric", 2, 2, 4, 2, -1, 1))
sketch21.addConstraint(Sketcher.Constraint("Symmetric", 0, 2, 6, 2, -1, 1))
sketch21.addConstraint(Sketcher.Constraint("Vertical", 3, 2, 4, 2))
sketch21.addConstraint(Sketcher.Constraint("DistanceX", 1, 2, 1, 1, 9.0))
sketch21.addConstraint(Sketcher.Constraint("DistanceY", 0, 2, 0, 1, 6.0))
sketch21.addConstraint(Sketcher.Constraint("DistanceY", -1, 1, 0, 2, 8.04))
pocket14 = body.newObject("PartDesign::Pocket", "Pocket013")
pocket14.Profile = sketch21
pocket14.Length = 11
pocket14.Reversed = True

# Sketch on XY plane
sketch22 = body.newObject("Sketcher::SketchObject", "Sketch021")
sketch22.AttachmentSupport = (doc.getObject("XY_Plane"), [""])
sketch22.MapMode = "FlatFace"
sketch22.AttachmentOffset = App.Placement(V(0, 0, 16), App.Rotation())
sketch22.addGeometry(Part.LineSegment(V(24.758564, -29.715168, 0), V(14.559435, -29.715168, 0)), False)
sketch22.addGeometry(Part.ArcOfCircle(Part.Circle(V(3.998525, -32.792047, 0), V(0, 0, 1), 11), math.radians(16.243268), math.radians(163.756732)), False)
sketch22.addGeometry(Part.LineSegment(V(-6.562385, -29.715168, 0), V(-16.761515, -29.715168, 0)), False)
sketch22.addGeometry(Part.LineSegment(V(-16.761515, -29.715168, 0), V(-16.761515, -31.680835, 0)), False)
sketch22.addGeometry(Part.LineSegment(V(-16.761515, -31.680835, 0), V(-2.852758, -31.680835, 0)), False)
sketch22.addGeometry(Part.LineSegment(V(-2.852758, -31.680835, 0), V(-2.852758, -31.356804, 0)), False)
sketch22.addGeometry(Part.ArcOfCircle(Part.Circle(V(3.998525, -32.792047, 0), V(0, 0, 1), 7), math.radians(11.831532), math.radians(168.168468)), False)
sketch22.addGeometry(Part.LineSegment(V(10.849807, -31.356804, 0), V(10.859237, -31.680835, 0)), False)
sketch22.addGeometry(Part.LineSegment(V(10.859237, -31.680835, 0), V(24.758564, -31.680835, 0)), False)
sketch22.addGeometry(Part.LineSegment(V(24.758564, -31.680835, 0), V(24.758564, -29.715168, 0)), False)
sketch22.addGeometry(Part.LineSegment(V(-2.914657, -33.8911, 0), V(-2.914657, -33.483823, 0)), False)
sketch22.addGeometry(Part.LineSegment(V(-2.914657, -33.483823, 0), V(-16.761515, -33.483823, 0)), False)
sketch22.addGeometry(Part.LineSegment(V(-16.761515, -33.483823, 0), V(-16.761515, -35.868925, 0)), False)
sketch22.addGeometry(Part.LineSegment(V(-16.761515, -35.868925, 0), V(-6.562385, -35.868925, 0)), False)
sketch22.addGeometry(Part.ArcOfCircle(Part.Circle(V(3.998525, -32.792047, 0), V(0, 0, 1), 11), math.radians(-163.756732), math.radians(-16.243268)), False)
sketch22.addGeometry(Part.LineSegment(V(14.559435, -35.868925, 0), V(24.758564, -35.868925, 0)), False)
sketch22.addGeometry(Part.LineSegment(V(24.758564, -35.868925, 0), V(24.758564, -33.483823, 0)), False)
sketch22.addGeometry(Part.LineSegment(V(24.758564, -33.483823, 0), V(10.911706, -33.483823, 0)), False)
sketch22.addGeometry(Part.LineSegment(V(10.911706, -33.483823, 0), V(10.911706, -33.8911, 0)), False)
sketch22.addGeometry(Part.ArcOfCircle(Part.Circle(V(3.998525, -32.792047, 0), V(0, 0, 1), 7), math.radians(-170.966751), math.radians(-9.033249)), False)
sketch22.addConstraint(Sketcher.Constraint("Coincident", 0, 2, 1, 1))
sketch22.addConstraint(Sketcher.Constraint("Coincident", 1, 2, 2, 1))
sketch22.addConstraint(Sketcher.Constraint("Coincident", 2, 2, 3, 1))
sketch22.addConstraint(Sketcher.Constraint("Coincident", 3, 2, 4, 1))
sketch22.addConstraint(Sketcher.Constraint("Coincident", 4, 2, 5, 1))
sketch22.addConstraint(Sketcher.Constraint("Coincident", 5, 2, 6, 2))
sketch22.addConstraint(Sketcher.Constraint("Coincident", 6, 1, 7, 1))
sketch22.addConstraint(Sketcher.Constraint("Coincident", 7, 2, 8, 1))
sketch22.addConstraint(Sketcher.Constraint("Coincident", 8, 2, 9, 1))
sketch22.addConstraint(Sketcher.Constraint("Coincident", 9, 2, 0, 1))
sketch22.addConstraint(Sketcher.Constraint("Coincident", 10, 2, 11, 1))
sketch22.addConstraint(Sketcher.Constraint("Coincident", 11, 2, 12, 1))
sketch22.addConstraint(Sketcher.Constraint("Coincident", 12, 2, 13, 1))
sketch22.addConstraint(Sketcher.Constraint("Coincident", 13, 2, 14, 1))
sketch22.addConstraint(Sketcher.Constraint("Coincident", 14, 2, 15, 1))
sketch22.addConstraint(Sketcher.Constraint("Coincident", 15, 2, 16, 1))
sketch22.addConstraint(Sketcher.Constraint("Coincident", 16, 2, 17, 1))
sketch22.addConstraint(Sketcher.Constraint("Coincident", 17, 2, 18, 1))
sketch22.addConstraint(Sketcher.Constraint("Coincident", 18, 2, 19, 2))
sketch22.addConstraint(Sketcher.Constraint("Coincident", 19, 1, 10, 1))
sketch22.addConstraint(Sketcher.Constraint("Horizontal", 0))
sketch22.addConstraint(Sketcher.Constraint("Horizontal", 2))
sketch22.addConstraint(Sketcher.Constraint("Vertical", 3))
sketch22.addConstraint(Sketcher.Constraint("Horizontal", 4))
sketch22.addConstraint(Sketcher.Constraint("Vertical", 5))
sketch22.addConstraint(Sketcher.Constraint("Horizontal", 8))
sketch22.addConstraint(Sketcher.Constraint("Vertical", 9))
sketch22.addConstraint(Sketcher.Constraint("Vertical", 10))
sketch22.addConstraint(Sketcher.Constraint("Horizontal", 11))
sketch22.addConstraint(Sketcher.Constraint("Vertical", 12))
sketch22.addConstraint(Sketcher.Constraint("Horizontal", 13))
sketch22.addConstraint(Sketcher.Constraint("Horizontal", 15))
sketch22.addConstraint(Sketcher.Constraint("Vertical", 16))
sketch22.addConstraint(Sketcher.Constraint("Horizontal", 17))
sketch22.addConstraint(Sketcher.Constraint("Vertical", 18))
sketch22.addConstraint(Sketcher.Constraint("Coincident", 6, 3, 1, 3))
sketch22.addConstraint(Sketcher.Constraint("Coincident", 14, 3, 1, 3))
sketch22.addConstraint(Sketcher.Constraint("Coincident", 19, 3, 1, 3))
sketch22.addConstraint(Sketcher.Constraint("Equal", 1, 14))
sketch22.addConstraint(Sketcher.Constraint("Equal", 6, 19))
sketch22.addConstraint(Sketcher.Constraint("Horizontal", 0, 2, 1, 2))
sketch22.addConstraint(Sketcher.Constraint("Horizontal", 5, 2, 6, 1))
sketch22.addConstraint(Sketcher.Constraint("Horizontal", 4, 2, 7, 2))
sketch22.addConstraint(Sketcher.Constraint("Horizontal", 13, 2, 14, 2))
sketch22.addConstraint(Sketcher.Constraint("Horizontal", 11, 2, 16, 2))
sketch22.addConstraint(Sketcher.Constraint("Horizontal", 18, 2, 19, 1))
sketch22.addConstraint(Sketcher.Constraint("Vertical", 3, 2, 11, 2))
sketch22.addConstraint(Sketcher.Constraint("Vertical", 1, 2, 13, 2))
sketch22.addConstraint(Sketcher.Constraint("Vertical", 9, 2, 15, 2))
sketch22.addConstraint(Sketcher.Constraint("Equal", 0, 2))
sketch22.addConstraint(Sketcher.Constraint("Radius", 1, 11.0))
sketch22.addConstraint(Sketcher.Constraint("Radius", 6, 7.0))
sketch22.addConstraint(Sketcher.Constraint("DistanceX", 0, 2, 0, 1, 10.199129))
sketch22.addConstraint(Sketcher.Constraint("DistanceY", 5, 1, 5, 2, 0.324032))
sketch22.addConstraint(Sketcher.Constraint("DistanceY", 18, 2, -1, 1, 33.8911))
sketch22.addConstraint(Sketcher.Constraint("DistanceX", 10, 2, 4, 2, 0.061899))
sketch22.addConstraint(Sketcher.Constraint("Distance", 7, 0.324169))
sketch22.addConstraint(Sketcher.Constraint("DistanceX", 4, 1, 4, 2, 13.908756))
sketch22.addConstraint(Sketcher.Constraint("DistanceY", 3, 2, 3, 1, 1.965667))
sketch22.addConstraint(Sketcher.Constraint("DistanceY", 10, 1, 10, 2, 0.407277))
sketch22.addConstraint(Sketcher.Constraint("DistanceX", 4, 2, -1, 1, 2.852758))
pad8 = body.newObject("PartDesign::Pad", "Pad007")
pad8.Profile = sketch22
pad8.Length = 15

# Sketch on XY plane
sketch23 = body.newObject("Sketcher::SketchObject", "Sketch022")
sketch23.AttachmentSupport = (doc.getObject("XY_Plane"), [""])
sketch23.MapMode = "FlatFace"
sketch23.AttachmentOffset = App.Placement(V(0, 0, 16), App.Rotation())
sketch23.addGeometry(Part.Circle(V(3.998525, -32.792047, 0), V(0, 0, 1), 7), False)
sketch23.addConstraint(Sketcher.Constraint("Diameter", 0, 14.0))
sketch23.addConstraint(Sketcher.Constraint("DistanceX", -1, 1, 0, 3, 3.998525))
sketch23.addConstraint(Sketcher.Constraint("DistanceY", 0, 3, -1, 1, 32.792047))
pocket15 = body.newObject("PartDesign::Pocket", "Pocket014")
pocket15.Profile = sketch23
pocket15.Type = "ThroughAll"

# Sketch on XZ plane
sketch24 = body.newObject("Sketcher::SketchObject", "Sketch023")
sketch24.AttachmentSupport = (doc.getObject("XZ_Plane"), [""])
sketch24.MapMode = "FlatFace"
sketch24.AttachmentOffset = App.Placement(V(0, 0, 76.23), App.Rotation())
sketch24.addGeometry(Part.Circle(V(-11.661515, 23.5, 0), V(0, 0, 1), 1.55), False)
sketch24.addGeometry(Part.Circle(V(19.658564, 23.5, 0), V(0, 0, 1), 1.55), False)
sketch24.addConstraint(Sketcher.Constraint("Equal", 0, 1))
sketch24.addConstraint(Sketcher.Constraint("Horizontal", 0, 3, 1, 3))
sketch24.addConstraint(Sketcher.Constraint("Diameter", 0, 3.1))
sketch24.addConstraint(Sketcher.Constraint("DistanceY", -1, 1, 0, 3, 23.5))
sketch24.addConstraint(Sketcher.Constraint("DistanceX", 0, 3, 1, 3, 31.320078))
sketch24.addConstraint(Sketcher.Constraint("DistanceX", 0, 3, -1, 1, 11.661515))
pocket16 = body.newObject("PartDesign::Pocket", "Pocket015")
pocket16.Profile = sketch24
pocket16.Type = "ThroughAll"

doc.recompute()
